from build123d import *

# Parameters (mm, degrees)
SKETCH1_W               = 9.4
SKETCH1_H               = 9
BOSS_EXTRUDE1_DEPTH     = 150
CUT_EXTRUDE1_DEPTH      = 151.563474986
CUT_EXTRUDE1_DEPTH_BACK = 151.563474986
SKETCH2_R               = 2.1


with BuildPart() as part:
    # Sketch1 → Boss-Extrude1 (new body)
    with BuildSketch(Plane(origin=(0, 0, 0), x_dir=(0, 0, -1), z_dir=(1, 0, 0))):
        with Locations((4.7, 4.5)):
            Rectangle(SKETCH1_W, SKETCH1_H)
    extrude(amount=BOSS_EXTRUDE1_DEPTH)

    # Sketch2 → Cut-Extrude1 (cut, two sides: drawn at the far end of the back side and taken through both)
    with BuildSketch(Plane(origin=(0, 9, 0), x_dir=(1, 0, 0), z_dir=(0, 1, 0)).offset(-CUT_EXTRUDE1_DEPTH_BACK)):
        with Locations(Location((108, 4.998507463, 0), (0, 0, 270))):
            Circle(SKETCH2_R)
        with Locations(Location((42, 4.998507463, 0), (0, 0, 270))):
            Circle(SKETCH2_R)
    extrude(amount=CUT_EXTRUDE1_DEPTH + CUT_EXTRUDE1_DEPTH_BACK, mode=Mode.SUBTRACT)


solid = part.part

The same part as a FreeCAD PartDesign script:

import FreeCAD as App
import Part
import Sketcher

V = App.Vector

doc = App.newDocument("Part")
params = doc.addObject("Spreadsheet::Sheet", "Params")
for row, (alias, value) in enumerate([
    ("sketch1_width", "9 mm"),
    ("sketch1_height", "9.4 mm"),
    ("pad1_length", "150 mm"),
    ("sketch2_diameter", "4.2 mm"),
], start=1):
    params.set(f"A{row}", alias)
    params.set(f"B{row}", "=" + value)
    params.setAlias(f"B{row}", alias)

body = doc.addObject("PartDesign::Body", "Body")

# Sketch on YZ plane
sketch1 = doc.addObject("Sketcher::SketchObject", "Sketch")
body.addObject(sketch1)
sketch1.AttachmentSupport = (doc.YZ_Plane, [""])
sketch1.MapMode = "FlatFace"
sketch1.addGeometry([
    Part.LineSegment(V(9, 0, 0), V(0, 0, 0)),
    Part.LineSegment(V(0, 0, 0), V(0, -9, 0)),
    Part.LineSegment(V(0, -9, 0), V(9, -9, 0)),
    Part.LineSegment(V(9, -9, 0), V(9, 0, 0)),
], False)
sketch1.addConstraint([
    Sketcher.Constraint("Coincident", 0, 2, 1, 1),
    Sketcher.Constraint("Coincident", 1, 2, 2, 1),
    Sketcher.Constraint("Coincident", 2, 2, 3, 1),
    Sketcher.Constraint("Coincident", 3, 2, 0, 1),
    Sketcher.Constraint("Horizontal", 0),
    Sketcher.Constraint("Vertical", 1),
    Sketcher.Constraint("Horizontal", 2),
    Sketcher.Constraint("Vertical", 3),
    Sketcher.Constraint("Coincident", 0, 2, -1, 1),
    Sketcher.Constraint("DistanceX", 0, 2, 0, 1, 9.0),
    Sketcher.Constraint("DistanceY", 1, 2, 1, 1, 9.4),
])
sketch1.setExpression("Constraints[9]", "Params.sketch1_width")
sketch1.setExpression("Constraints[10]", "Params.sketch1_height")
pad1 = doc.addObject("PartDesign::Pad", "Pad")
body.addObject(pad1)
pad1.Profile = sketch1
pad1.setExpression("Length", "Params.pad1_length")

# Sketch on XZ plane
sketch2 = doc.addObject("Sketcher::SketchObject", "Sketch001")
body.addObject(sketch2)
sketch2.AttachmentSupport = (doc.XZ_Plane, [""])
sketch2.MapMode = "FlatFace"
sketch2.AttachmentOffset = App.Placement(V(0, 0, -9), App.Rotation())
sketch2.addGeometry([
    Part.Circle(V(108, -5, 0), V(0, 0, 1), 2.1),
    Part.Circle(V(42, -5, 0), V(0, 0, 1), 2.1),
], False)
sketch2.addConstraint([
    Sketcher.Constraint("Equal", 0, 1),
    Sketcher.Constraint("Horizontal", 0, 3, 1, 3),
    Sketcher.Constraint("Diameter", 0, 4.2),
    Sketcher.Constraint("DistanceX", -1, 1, 0, 3, 108.0),
    Sketcher.Constraint("DistanceX", -1, 1, 1, 3, 42.0),
    Sketcher.Constraint("DistanceY", 0, 3, -1, 1, 4.998507),
])
sketch2.setExpression("Constraints[2]", "Params.sketch2_diameter")
pocket1 = doc.addObject("PartDesign::Pocket", "Pocket")
body.addObject(pocket1)
pocket1.Profile = sketch2
pocket1.Type = "ThroughAll"
pocket1.Midplane = True

doc.recompute()
